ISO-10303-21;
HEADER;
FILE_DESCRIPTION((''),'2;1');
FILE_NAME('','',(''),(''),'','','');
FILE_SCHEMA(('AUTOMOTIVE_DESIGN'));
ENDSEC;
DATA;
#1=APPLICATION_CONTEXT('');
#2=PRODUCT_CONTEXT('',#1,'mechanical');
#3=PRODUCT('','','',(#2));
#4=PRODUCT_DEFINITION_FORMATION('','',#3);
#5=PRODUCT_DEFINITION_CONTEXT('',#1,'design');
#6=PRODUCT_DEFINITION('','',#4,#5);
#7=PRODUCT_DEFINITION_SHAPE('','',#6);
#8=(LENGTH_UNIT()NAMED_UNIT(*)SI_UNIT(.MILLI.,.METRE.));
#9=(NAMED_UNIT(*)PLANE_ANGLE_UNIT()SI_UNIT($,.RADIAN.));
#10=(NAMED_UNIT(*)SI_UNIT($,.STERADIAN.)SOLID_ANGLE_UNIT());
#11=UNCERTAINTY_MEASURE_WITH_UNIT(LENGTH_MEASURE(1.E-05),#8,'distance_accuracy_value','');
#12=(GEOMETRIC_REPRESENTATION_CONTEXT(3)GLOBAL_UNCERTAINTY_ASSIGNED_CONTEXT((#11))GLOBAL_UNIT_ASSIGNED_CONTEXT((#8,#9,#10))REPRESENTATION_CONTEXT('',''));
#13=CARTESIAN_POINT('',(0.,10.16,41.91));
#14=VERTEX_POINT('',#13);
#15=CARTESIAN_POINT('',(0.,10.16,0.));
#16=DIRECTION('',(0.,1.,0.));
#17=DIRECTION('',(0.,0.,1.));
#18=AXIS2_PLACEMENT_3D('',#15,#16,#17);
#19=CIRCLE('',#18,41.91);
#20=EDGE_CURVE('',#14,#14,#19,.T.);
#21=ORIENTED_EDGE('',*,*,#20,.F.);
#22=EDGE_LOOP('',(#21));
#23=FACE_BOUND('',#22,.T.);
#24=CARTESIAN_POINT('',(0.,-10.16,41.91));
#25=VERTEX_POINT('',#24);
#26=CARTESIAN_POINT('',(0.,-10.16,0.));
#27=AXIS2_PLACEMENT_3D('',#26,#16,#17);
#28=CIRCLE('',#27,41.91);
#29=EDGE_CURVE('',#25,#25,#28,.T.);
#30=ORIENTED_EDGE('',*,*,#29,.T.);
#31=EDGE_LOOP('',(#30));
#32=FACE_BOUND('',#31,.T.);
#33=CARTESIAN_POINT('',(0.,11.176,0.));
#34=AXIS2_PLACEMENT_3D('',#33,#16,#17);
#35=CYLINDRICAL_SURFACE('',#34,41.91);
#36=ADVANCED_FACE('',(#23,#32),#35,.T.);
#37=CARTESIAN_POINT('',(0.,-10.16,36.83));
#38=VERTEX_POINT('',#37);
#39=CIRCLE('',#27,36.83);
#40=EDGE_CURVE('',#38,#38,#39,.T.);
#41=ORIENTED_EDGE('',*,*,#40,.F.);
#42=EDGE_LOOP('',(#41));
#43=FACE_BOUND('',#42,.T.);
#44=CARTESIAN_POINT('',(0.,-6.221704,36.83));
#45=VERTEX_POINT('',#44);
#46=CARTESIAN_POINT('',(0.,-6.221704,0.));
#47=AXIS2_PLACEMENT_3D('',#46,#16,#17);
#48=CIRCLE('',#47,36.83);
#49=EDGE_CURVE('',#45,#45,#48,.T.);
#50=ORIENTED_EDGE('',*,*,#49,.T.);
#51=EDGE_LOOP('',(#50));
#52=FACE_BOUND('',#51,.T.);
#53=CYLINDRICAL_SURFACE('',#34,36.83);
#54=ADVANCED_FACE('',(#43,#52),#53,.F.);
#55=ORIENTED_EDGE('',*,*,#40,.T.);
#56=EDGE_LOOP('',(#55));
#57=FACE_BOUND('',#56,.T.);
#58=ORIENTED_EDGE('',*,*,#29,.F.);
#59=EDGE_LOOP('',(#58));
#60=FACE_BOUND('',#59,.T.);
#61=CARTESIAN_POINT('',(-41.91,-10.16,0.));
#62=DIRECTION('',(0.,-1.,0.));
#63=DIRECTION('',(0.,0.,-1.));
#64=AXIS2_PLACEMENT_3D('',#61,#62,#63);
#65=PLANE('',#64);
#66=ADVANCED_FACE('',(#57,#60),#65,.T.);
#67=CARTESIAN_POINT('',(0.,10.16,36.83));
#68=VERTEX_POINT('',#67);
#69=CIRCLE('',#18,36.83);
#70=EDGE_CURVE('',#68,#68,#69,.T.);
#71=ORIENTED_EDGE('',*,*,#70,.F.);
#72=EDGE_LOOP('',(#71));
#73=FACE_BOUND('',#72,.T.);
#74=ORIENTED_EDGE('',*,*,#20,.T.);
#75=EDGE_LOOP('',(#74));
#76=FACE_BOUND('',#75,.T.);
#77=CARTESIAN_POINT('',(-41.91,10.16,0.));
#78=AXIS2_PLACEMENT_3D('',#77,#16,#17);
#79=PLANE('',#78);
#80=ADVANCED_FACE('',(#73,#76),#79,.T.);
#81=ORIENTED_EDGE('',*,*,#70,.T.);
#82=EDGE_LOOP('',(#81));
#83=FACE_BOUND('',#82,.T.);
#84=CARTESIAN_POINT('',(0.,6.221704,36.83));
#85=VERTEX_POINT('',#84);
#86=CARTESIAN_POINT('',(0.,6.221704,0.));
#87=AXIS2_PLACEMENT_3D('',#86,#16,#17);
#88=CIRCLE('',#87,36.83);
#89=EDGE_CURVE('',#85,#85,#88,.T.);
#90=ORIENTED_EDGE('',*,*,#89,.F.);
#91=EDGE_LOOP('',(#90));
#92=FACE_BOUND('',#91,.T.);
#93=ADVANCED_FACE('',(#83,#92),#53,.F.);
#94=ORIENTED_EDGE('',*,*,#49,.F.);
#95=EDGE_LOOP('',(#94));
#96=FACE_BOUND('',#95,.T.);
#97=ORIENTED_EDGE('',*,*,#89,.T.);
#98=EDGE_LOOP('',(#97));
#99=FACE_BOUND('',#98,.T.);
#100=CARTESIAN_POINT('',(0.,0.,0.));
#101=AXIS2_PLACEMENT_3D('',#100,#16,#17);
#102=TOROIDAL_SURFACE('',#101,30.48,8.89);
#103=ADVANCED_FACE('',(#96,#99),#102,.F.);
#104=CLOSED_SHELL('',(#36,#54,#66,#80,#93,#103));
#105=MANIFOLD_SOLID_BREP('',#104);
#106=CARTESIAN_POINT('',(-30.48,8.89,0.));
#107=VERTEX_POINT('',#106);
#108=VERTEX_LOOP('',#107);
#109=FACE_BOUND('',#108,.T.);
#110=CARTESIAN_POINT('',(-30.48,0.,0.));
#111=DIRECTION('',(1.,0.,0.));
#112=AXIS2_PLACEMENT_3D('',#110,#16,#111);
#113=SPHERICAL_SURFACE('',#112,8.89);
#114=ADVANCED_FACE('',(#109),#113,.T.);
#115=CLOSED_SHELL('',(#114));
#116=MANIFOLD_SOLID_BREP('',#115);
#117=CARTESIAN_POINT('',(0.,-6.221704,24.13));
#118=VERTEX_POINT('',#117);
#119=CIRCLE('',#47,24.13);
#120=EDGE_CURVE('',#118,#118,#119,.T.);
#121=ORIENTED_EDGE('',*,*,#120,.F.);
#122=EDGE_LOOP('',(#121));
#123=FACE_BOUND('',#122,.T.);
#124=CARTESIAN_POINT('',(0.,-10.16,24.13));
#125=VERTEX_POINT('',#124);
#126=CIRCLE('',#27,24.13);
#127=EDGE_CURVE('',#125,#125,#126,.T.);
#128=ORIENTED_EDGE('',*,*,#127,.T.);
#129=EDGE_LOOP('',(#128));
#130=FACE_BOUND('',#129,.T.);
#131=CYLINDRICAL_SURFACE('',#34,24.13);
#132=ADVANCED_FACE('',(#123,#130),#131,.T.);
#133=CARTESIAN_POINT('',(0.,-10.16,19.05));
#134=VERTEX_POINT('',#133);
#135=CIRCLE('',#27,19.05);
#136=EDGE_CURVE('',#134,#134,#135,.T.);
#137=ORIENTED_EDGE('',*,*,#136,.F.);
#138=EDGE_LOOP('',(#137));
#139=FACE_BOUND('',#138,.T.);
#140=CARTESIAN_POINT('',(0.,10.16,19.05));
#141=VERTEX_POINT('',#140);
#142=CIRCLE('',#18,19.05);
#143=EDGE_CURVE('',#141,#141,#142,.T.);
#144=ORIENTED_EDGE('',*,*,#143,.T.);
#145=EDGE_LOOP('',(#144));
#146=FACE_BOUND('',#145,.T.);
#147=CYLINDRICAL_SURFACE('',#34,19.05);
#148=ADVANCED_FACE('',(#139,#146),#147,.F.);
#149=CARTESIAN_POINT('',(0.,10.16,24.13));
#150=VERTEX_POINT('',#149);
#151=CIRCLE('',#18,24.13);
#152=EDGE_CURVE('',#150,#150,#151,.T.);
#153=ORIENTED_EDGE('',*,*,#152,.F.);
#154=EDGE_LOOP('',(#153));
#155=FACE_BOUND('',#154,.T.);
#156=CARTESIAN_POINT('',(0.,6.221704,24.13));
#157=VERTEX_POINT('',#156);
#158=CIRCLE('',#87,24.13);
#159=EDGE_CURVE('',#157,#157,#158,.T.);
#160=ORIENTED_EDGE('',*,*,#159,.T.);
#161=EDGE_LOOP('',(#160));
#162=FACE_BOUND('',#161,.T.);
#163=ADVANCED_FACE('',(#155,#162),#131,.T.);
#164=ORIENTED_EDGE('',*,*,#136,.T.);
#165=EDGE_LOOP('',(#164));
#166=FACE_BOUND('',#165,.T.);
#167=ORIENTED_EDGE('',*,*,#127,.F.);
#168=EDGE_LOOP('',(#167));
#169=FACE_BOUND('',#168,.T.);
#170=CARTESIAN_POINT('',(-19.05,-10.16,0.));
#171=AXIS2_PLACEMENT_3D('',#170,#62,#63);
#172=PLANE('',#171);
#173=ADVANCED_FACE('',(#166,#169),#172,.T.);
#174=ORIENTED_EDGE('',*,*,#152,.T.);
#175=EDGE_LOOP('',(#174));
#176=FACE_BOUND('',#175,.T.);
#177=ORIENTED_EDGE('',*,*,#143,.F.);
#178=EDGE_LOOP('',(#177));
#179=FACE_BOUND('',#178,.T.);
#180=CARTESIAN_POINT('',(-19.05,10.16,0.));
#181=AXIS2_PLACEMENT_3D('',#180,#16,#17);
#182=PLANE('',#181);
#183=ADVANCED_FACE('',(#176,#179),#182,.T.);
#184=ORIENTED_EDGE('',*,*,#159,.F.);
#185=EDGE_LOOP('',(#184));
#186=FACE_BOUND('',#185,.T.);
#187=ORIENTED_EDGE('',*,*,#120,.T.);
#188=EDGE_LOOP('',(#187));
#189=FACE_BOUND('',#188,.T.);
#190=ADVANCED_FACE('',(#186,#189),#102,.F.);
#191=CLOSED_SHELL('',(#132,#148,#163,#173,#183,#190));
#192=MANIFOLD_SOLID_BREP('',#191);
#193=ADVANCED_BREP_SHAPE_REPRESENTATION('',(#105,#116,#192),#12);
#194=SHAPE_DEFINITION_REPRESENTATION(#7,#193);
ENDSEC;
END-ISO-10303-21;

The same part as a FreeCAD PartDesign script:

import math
import FreeCAD as App
import Part
import Sketcher
Q = App.Units.Quantity

doc = App.newDocument("Part")
params = doc.addObject("Spreadsheet::Sheet", "Params")
for row, (alias, value) in enumerate([
    ("sketch1_radius", "0.35 in"),
    ("revolution_angle", "360 deg"),
    ("sketch2_radius", "0.35 in"),
    ("sketch2_width", "0.2 in"),
    ("sketch2_height", "0.8 in"),
    ("revolution2_angle", "360 deg"),
], start=1):
    params.set(f"A{row}", alias)
    params.set(f"B{row}", "=" + value)
    params.setAlias(f"B{row}", alias)

body = doc.addObject("PartDesign::Body", "Body")

sketch1 = body.newObject("Sketcher::SketchObject", "Sketch")
sketch1.AttachmentSupport = (doc.getObject("XY_Plane"), [""])
sketch1.MapMode = "FlatFace"
sketch1.addGeometry([
    Part.ArcOfCircle(Part.Circle(App.Vector(-30, 0, 0), App.Vector(0, 0, 1), 9), math.radians(-90), math.radians(90)),
    Part.LineSegment(App.Vector(-30, 9, 0), App.Vector(-30, -9, 0)),
], False)
sketch1.addGeometry(Part.LineSegment(App.Vector(-30, 9, 0), App.Vector(-30, -9, 0)), True)
sketch1.addConstraint([
    Sketcher.Constraint("Coincident", 0, 1, 1, 2),
    Sketcher.Constraint("Coincident", 1, 1, 0, 2),
    Sketcher.Constraint("Vertical", 1),
    Sketcher.Constraint("Vertical", 2),
    Sketcher.Constraint("Coincident", 2, 1, 1, 1),
    Sketcher.Constraint("PointOnObject", 0, 3, -1),
    Sketcher.Constraint("Equal", 1, 2),
    Sketcher.Constraint("Radius", 0, Q("0.35 in")),
    Sketcher.Constraint("DistanceX", 0, 3, -1, 1, Q("1.2 in")),
    Sketcher.Constraint("DistanceX", 0, 1, -1, 1, Q("1.2 in")),
])
sketch1.setExpression("Constraints[7]", "Params.sketch1_radius")
revolution = body.newObject("PartDesign::Revolution", "Revolution")
revolution.Profile = sketch1
revolution.ReferenceAxis = (sketch1, ["Axis0"])
revolution.setExpression("Angle", "Params.revolution_angle")
body2 = doc.addObject("PartDesign::Body", "Body001")
body2.AllowCompound = True

sketch2 = body2.newObject("Sketcher::SketchObject", "Sketch001")
sketch2.AttachmentSupport = (doc.getObject("XY_Plane001"), [""])
sketch2.MapMode = "FlatFace"
sketch2.addGeometry([
    Part.LineSegment(App.Vector(-41.9, -10.2, 0), App.Vector(-36.8, -10.2, 0)),
    Part.LineSegment(App.Vector(-36.8, -10.2, 0), App.Vector(-36.8, -6.2, 0)),
    Part.ArcOfCircle(Part.Circle(App.Vector(-30.5, 0, 0), App.Vector(0, 0, 1), 8.9), math.radians(136), math.radians(224)),
    Part.LineSegment(App.Vector(-36.8, 6.2, 0), App.Vector(-36.8, 10.2, 0)),
    Part.LineSegment(App.Vector(-36.8, 10.2, 0), App.Vector(-41.9, 10.2, 0)),
    Part.LineSegment(App.Vector(-41.9, 10.2, 0), App.Vector(-41.9, -10.2, 0)),
    Part.LineSegment(App.Vector(-24.1, -10.2, 0), App.Vector(-19.1, -10.2, 0)),
    Part.LineSegment(App.Vector(-19.1, -10.2, 0), App.Vector(-19.1, 10.2, 0)),
    Part.LineSegment(App.Vector(-19.1, 10.2, 0), App.Vector(-24.1, 10.2, 0)),
    Part.LineSegment(App.Vector(-24.1, 10.2, 0), App.Vector(-24.1, 6.2, 0)),
    Part.ArcOfCircle(Part.Circle(App.Vector(-30.5, 0, 0), App.Vector(0, 0, 1), 8.9), math.radians(-44), math.radians(44)),
    Part.LineSegment(App.Vector(-24.1, -6.2, 0), App.Vector(-24.1, -10.2, 0)),
], False)
sketch2.addConstraint([
    Sketcher.Constraint("Coincident", 0, 2, 1, 1),
    Sketcher.Constraint("Coincident", 1, 2, 2, 2),
    Sketcher.Constraint("Coincident", 2, 1, 3, 1),
    Sketcher.Constraint("Coincident", 3, 2, 4, 1),
    Sketcher.Constraint("Coincident", 4, 2, 5, 1),
    Sketcher.Constraint("Coincident", 5, 2, 0, 1),
    Sketcher.Constraint("Coincident", 6, 2, 7, 1),
    Sketcher.Constraint("Coincident", 7, 2, 8, 1),
    Sketcher.Constraint("Coincident", 8, 2, 9, 1),
    Sketcher.Constraint("Coincident", 9, 2, 10, 2),
    Sketcher.Constraint("Coincident", 10, 1, 11, 1),
    Sketcher.Constraint("Coincident", 11, 2, 6, 1),
    Sketcher.Constraint("Horizontal", 0),
    Sketcher.Constraint("Vertical", 1),
    Sketcher.Constraint("Vertical", 3),
    Sketcher.Constraint("Horizontal", 4),
    Sketcher.Constraint("Vertical", 5),
    Sketcher.Constraint("Horizontal", 6),
    Sketcher.Constraint("Vertical", 7),
    Sketcher.Constraint("Horizontal", 8),
    Sketcher.Constraint("Vertical", 9),
    Sketcher.Constraint("Vertical", 11),
    Sketcher.Constraint("Coincident", 10, 3, 2, 3),
    Sketcher.Constraint("Equal", 2, 10),
    Sketcher.Constraint("Symmetric", 1, 2, 2, 1, -1),
    Sketcher.Constraint("Symmetric", 8, 2, 11, 2, -1),
    Sketcher.Constraint("Horizontal", 5, 2, 6, 2),
    Sketcher.Constraint("Horizontal", 4, 2, 7, 2),
    Sketcher.Constraint("Horizontal", 2, 1, 9, 2),
    Sketcher.Constraint("Equal", 4, 6),
    Sketcher.Constraint("Radius", 2, Q("0.35 in")),
    Sketcher.Constraint("DistanceX", 0, 1, 0, 2, Q("0.2 in")),
    Sketcher.Constraint("DistanceY", 5, 2, 5, 1, Q("0.8 in")),
    Sketcher.Constraint("DistanceX", 2, 3, -1, 1, Q("1.2 in")),
    Sketcher.Constraint("DistanceX", 0, 2, 6, 2, Q("0.7 in")),
])
sketch2.setExpression("Constraints[30]", "Params.sketch2_radius")
sketch2.setExpression("Constraints[31]", "Params.sketch2_width")
sketch2.setExpression("Constraints[32]", "Params.sketch2_height")
revolution2 = body2.newObject("PartDesign::Revolution", "Revolution001")
revolution2.Profile = sketch2
revolution2.ReferenceAxis = (sketch2, ["V_Axis"])
revolution2.setExpression("Angle", "Params.revolution2_angle")

doc.recompute()
